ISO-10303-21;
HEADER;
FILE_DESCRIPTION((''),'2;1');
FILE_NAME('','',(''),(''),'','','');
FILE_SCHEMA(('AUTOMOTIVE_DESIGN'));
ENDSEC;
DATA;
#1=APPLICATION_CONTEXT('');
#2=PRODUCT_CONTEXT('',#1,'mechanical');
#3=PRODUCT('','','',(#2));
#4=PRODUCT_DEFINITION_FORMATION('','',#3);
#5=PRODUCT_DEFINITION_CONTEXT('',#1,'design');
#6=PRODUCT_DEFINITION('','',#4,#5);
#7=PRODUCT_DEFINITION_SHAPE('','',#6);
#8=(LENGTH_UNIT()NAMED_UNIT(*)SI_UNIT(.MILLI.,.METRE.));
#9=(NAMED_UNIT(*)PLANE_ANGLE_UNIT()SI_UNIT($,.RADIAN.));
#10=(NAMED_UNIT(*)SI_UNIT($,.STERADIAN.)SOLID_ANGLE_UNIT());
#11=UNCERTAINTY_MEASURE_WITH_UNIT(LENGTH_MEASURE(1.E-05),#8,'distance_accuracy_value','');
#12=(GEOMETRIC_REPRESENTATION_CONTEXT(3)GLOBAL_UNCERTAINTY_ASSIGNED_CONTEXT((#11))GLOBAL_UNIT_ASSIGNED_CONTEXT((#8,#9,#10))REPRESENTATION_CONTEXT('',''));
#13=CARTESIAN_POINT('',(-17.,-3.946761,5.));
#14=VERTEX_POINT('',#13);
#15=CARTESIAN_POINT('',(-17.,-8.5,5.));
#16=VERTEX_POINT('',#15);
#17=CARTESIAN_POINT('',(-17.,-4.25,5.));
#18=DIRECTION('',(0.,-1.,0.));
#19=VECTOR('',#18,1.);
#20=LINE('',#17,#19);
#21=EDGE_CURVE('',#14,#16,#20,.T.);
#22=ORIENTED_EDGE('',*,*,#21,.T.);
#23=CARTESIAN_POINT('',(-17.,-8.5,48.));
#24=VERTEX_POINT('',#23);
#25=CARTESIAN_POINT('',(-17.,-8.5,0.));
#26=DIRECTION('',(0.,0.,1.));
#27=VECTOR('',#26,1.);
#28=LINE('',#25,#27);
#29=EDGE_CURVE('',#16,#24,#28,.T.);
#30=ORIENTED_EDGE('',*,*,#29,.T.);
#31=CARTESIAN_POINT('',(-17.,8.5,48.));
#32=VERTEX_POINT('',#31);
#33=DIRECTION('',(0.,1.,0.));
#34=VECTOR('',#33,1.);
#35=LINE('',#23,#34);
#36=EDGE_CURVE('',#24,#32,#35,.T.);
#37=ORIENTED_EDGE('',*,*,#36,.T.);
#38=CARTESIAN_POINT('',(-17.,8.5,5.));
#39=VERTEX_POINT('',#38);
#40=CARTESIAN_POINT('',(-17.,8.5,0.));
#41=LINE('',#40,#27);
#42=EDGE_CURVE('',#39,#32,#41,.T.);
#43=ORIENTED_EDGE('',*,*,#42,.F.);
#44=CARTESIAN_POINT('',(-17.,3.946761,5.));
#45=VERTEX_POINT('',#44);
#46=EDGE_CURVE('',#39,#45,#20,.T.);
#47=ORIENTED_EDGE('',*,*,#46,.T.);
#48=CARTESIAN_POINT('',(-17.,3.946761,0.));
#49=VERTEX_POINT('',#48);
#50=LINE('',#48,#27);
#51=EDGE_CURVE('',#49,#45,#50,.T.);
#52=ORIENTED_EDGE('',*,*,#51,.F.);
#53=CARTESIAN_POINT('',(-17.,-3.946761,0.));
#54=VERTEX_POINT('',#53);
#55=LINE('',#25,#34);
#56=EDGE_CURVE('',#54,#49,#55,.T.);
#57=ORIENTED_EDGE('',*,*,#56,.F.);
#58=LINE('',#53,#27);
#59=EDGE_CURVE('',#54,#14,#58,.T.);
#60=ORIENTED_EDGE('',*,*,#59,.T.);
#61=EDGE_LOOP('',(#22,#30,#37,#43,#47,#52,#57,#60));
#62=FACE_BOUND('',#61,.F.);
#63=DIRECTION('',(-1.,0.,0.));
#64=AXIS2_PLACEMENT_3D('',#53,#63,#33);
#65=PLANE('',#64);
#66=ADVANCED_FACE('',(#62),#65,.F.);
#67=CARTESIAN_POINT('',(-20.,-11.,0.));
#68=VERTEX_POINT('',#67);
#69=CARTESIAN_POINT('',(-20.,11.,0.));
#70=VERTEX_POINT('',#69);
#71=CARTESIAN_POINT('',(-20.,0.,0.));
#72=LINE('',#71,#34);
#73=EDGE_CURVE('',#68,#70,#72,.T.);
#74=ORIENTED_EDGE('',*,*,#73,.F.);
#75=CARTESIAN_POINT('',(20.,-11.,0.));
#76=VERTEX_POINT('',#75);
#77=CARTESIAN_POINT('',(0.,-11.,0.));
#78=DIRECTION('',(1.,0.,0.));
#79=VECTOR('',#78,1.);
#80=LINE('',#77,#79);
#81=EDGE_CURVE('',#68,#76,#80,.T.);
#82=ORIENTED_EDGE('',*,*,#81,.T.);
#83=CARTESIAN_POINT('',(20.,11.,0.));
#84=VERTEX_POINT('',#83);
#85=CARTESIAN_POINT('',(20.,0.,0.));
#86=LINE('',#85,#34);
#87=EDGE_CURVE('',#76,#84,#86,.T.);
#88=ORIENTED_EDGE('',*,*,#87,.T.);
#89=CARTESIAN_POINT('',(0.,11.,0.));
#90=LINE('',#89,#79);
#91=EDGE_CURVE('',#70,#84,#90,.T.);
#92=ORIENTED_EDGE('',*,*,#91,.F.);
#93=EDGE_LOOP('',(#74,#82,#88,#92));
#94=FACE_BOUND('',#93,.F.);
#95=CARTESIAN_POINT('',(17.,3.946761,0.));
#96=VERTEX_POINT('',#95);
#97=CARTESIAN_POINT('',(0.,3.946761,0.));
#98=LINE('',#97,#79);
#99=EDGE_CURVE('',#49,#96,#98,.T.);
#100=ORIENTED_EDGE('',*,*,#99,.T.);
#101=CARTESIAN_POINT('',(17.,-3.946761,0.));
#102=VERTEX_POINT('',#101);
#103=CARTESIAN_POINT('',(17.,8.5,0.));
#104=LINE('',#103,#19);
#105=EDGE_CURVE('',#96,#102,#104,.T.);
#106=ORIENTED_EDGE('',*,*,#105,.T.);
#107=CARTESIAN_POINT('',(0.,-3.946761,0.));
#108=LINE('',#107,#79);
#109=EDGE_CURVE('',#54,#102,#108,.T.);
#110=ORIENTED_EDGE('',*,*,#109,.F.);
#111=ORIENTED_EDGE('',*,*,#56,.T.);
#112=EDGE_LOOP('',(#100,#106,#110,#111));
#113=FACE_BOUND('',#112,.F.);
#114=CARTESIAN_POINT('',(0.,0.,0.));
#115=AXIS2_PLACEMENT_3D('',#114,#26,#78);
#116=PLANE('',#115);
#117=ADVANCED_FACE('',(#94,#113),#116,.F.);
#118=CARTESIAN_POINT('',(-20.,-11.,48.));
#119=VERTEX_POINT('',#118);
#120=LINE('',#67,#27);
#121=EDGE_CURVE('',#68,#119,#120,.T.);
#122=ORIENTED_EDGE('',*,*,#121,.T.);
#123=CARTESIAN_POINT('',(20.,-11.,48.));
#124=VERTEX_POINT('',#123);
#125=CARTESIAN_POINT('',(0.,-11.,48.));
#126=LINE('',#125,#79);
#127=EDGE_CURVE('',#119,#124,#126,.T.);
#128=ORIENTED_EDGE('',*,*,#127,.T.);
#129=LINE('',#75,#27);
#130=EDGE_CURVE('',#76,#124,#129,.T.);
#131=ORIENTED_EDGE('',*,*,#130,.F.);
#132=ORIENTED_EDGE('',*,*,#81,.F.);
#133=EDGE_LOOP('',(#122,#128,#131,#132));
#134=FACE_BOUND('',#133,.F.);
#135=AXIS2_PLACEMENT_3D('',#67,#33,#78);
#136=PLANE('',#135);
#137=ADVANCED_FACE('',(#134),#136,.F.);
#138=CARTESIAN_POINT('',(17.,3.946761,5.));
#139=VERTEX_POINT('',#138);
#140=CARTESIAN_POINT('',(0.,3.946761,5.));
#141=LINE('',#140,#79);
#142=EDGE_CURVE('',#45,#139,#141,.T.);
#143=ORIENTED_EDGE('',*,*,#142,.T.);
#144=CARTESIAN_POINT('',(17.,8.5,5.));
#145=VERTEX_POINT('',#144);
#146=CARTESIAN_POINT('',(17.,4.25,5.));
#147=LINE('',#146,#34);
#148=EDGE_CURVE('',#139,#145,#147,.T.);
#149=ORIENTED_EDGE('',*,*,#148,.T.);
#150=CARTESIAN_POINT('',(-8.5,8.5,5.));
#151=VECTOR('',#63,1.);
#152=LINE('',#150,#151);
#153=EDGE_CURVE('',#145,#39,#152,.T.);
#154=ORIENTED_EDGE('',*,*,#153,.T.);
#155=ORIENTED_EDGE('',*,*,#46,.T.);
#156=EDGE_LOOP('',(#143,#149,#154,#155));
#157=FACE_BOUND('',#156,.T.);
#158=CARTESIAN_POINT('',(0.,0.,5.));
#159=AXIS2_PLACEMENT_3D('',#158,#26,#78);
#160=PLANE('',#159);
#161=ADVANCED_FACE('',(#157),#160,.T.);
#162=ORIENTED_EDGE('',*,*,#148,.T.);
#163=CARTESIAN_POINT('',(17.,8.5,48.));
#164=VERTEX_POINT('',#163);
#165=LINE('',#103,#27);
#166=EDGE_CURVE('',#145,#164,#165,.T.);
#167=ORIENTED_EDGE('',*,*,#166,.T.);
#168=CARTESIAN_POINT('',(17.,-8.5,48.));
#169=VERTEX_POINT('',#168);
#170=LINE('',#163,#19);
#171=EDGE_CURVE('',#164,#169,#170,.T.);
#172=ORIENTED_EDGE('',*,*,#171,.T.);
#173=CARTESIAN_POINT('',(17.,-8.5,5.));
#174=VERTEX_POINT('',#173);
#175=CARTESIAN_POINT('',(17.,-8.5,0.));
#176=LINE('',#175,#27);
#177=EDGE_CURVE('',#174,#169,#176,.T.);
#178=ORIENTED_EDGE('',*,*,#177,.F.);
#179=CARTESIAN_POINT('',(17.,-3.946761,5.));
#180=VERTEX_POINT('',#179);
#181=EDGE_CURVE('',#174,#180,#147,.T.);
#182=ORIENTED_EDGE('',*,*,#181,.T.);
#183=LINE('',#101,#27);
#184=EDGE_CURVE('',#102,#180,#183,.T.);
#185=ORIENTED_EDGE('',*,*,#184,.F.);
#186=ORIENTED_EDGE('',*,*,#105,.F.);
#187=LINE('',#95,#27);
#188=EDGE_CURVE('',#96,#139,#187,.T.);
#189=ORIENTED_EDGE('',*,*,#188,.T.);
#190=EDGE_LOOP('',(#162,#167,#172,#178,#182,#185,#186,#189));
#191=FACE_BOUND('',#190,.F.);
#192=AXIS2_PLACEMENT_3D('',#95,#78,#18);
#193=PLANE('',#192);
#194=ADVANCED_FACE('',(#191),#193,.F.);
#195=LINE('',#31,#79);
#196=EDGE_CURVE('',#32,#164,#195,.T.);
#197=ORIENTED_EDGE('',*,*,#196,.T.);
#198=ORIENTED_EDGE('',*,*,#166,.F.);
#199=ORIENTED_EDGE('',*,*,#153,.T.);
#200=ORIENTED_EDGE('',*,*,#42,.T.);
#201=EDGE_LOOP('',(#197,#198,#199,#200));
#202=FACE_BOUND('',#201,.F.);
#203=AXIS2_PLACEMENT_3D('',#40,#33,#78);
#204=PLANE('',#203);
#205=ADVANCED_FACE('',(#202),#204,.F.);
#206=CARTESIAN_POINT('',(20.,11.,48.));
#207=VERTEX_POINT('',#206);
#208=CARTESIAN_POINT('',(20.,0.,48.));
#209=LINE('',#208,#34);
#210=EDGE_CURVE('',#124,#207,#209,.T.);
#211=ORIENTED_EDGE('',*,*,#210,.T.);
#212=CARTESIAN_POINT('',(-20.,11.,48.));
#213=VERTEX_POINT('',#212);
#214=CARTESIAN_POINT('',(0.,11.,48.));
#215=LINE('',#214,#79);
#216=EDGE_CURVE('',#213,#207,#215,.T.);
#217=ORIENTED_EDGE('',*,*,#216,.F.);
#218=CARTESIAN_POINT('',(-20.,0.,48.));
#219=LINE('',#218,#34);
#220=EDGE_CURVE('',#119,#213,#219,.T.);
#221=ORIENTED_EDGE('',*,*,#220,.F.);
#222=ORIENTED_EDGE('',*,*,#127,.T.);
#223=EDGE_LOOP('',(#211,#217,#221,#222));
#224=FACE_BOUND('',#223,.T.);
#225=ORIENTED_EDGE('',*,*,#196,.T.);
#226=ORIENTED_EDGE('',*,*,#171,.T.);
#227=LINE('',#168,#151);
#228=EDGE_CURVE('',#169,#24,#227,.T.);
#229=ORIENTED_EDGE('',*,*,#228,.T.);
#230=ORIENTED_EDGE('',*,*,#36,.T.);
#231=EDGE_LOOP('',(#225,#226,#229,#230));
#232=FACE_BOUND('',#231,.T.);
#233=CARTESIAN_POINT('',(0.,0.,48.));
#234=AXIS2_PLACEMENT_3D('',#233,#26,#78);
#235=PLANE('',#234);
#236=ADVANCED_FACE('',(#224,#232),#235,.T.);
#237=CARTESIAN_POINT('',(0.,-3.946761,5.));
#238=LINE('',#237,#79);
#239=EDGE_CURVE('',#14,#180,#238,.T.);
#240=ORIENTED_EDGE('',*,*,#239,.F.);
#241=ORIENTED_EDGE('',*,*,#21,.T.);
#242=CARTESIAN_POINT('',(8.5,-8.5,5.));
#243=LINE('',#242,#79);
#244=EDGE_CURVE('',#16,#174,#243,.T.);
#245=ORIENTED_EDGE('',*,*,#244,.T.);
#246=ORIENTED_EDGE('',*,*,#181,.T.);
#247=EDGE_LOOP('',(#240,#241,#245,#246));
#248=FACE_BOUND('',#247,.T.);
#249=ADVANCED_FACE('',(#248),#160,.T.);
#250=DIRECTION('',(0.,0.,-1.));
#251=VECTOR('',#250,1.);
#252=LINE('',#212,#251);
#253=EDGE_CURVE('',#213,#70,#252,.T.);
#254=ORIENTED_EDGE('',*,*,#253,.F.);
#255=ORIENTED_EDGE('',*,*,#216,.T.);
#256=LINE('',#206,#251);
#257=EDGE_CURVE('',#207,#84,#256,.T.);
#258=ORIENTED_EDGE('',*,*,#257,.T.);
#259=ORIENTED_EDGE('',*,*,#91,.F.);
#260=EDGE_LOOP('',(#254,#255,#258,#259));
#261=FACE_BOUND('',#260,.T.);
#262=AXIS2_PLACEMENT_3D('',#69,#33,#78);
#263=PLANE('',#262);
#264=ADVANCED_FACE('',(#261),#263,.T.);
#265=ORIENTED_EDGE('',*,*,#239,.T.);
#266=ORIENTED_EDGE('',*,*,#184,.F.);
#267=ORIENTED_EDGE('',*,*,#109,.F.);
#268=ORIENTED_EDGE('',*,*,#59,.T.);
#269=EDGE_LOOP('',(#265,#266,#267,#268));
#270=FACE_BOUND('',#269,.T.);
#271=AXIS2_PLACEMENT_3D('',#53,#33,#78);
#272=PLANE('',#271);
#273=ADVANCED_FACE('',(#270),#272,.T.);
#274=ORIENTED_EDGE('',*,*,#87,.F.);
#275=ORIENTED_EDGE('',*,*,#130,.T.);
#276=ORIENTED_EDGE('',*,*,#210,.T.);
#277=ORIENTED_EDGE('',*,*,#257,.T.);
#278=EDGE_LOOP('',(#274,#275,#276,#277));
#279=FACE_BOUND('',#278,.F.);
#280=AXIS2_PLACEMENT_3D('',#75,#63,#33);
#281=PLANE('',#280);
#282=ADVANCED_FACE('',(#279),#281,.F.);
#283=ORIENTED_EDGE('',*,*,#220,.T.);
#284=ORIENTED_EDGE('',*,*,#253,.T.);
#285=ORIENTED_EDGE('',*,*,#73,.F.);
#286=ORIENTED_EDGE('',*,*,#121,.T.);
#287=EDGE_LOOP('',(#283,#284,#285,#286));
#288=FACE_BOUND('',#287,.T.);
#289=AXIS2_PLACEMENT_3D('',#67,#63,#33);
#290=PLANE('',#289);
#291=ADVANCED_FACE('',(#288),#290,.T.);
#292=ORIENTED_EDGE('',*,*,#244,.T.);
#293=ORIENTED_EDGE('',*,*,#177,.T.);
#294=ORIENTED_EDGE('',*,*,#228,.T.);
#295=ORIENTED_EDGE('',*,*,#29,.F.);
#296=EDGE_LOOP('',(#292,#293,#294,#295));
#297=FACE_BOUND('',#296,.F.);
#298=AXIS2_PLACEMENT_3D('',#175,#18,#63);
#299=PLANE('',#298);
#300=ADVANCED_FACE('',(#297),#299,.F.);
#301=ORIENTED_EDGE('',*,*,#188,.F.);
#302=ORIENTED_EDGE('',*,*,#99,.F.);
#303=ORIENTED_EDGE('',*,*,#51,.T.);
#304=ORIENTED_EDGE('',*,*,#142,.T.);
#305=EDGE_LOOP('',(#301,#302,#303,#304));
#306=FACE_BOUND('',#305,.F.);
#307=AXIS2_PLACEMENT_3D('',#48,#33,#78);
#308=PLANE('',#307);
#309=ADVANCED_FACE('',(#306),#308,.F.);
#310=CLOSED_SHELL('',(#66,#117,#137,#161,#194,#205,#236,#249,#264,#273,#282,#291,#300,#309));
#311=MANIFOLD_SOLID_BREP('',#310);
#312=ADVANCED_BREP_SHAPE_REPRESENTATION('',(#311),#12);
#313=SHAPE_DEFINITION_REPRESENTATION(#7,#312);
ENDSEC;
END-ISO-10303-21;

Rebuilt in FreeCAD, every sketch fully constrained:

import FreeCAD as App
import Part
import Sketcher


def add_polygon(sketch, points):
    """Adds a closed chain of lines whose ends are joined by coincident constraints."""
    first, n = sketch.GeometryCount, len(points)
    for a, b in zip(points, points[1:] + points[:1]):
        sketch.addGeometry(Part.LineSegment(App.Vector(*a, 0), App.Vector(*b, 0)), False)
    for i in range(n):
        sketch.addConstraint(Sketcher.Constraint("Coincident", first + i, 2, first + (i + 1) % n, 1))

doc = App.newDocument("Part")
body = doc.addObject("PartDesign::Body", "Body")

# Sketch on XY plane
sketch1 = doc.addObject("Sketcher::SketchObject", "Sketch")
body.addObject(sketch1)
sketch1.AttachmentSupport = (doc.XY_Plane, [""])
sketch1.MapMode = "FlatFace"
add_polygon(sketch1, [(-20, 11), (-20, -11), (20, -11), (20, 11)])  # lines 0-3
add_polygon(sketch1, [(17, 4), (17, -4), (-17, -4), (-17, 4)])  # lines 4-7
sketch1.addConstraint([
    Sketcher.Constraint("Vertical", 0),
    Sketcher.Constraint("Horizontal", 1),
    Sketcher.Constraint("Vertical", 2),
    Sketcher.Constraint("Horizontal", 3),
    Sketcher.Constraint("Vertical", 4),
    Sketcher.Constraint("Horizontal", 5),
    Sketcher.Constraint("Vertical", 6),
    Sketcher.Constraint("Horizontal", 7),
    Sketcher.Constraint("Symmetric", 0, 2, 2, 2, -1, 1),
    Sketcher.Constraint("Symmetric", 4, 2, 6, 2, -1, 1),
    Sketcher.Constraint("DistanceX", 1, 1, 1, 2, 40.0),
    Sketcher.Constraint("DistanceX", 5, 2, 5, 1, 34.0),
    Sketcher.Constraint("DistanceY", 0, 2, 0, 1, 22.0),
    Sketcher.Constraint("DistanceY", 4, 2, 4, 1, 7.893521),
])
pad1 = doc.addObject("PartDesign::Pad", "Pad")
body.addObject(pad1)
pad1.Profile = sketch1
pad1.Length = 5

# Sketch on XY plane
sketch2 = doc.addObject("Sketcher::SketchObject", "Sketch001")
body.addObject(sketch2)
sketch2.AttachmentSupport = (doc.XY_Plane, [""])
sketch2.MapMode = "FlatFace"
add_polygon(sketch2, [(-20, 11), (-20, -11), (20, -11), (20, 11)])  # lines 0-3
add_polygon(sketch2, [(17, 8), (17, -8), (-17, -8), (-17, 8)])  # lines 4-7
sketch2.addConstraint([
    Sketcher.Constraint("Vertical", 0),
    Sketcher.Constraint("Horizontal", 1),
    Sketcher.Constraint("Vertical", 2),
    Sketcher.Constraint("Horizontal", 3),
    Sketcher.Constraint("Vertical", 4),
    Sketcher.Constraint("Horizontal", 5),
    Sketcher.Constraint("Vertical", 6),
    Sketcher.Constraint("Horizontal", 7),
    Sketcher.Constraint("Symmetric", 0, 2, 2, 2, -1, 1),
    Sketcher.Constraint("Symmetric", 4, 2, 6, 2, -1, 1),
    Sketcher.Constraint("DistanceX", 1, 1, 1, 2, 40.0),
    Sketcher.Constraint("DistanceX", 5, 2, 5, 1, 34.0),
    Sketcher.Constraint("DistanceY", 0, 2, 0, 1, 22.0),
    Sketcher.Constraint("DistanceY", 4, 2, 4, 1, 17.0),
])
pad2 = doc.addObject("PartDesign::Pad", "Pad001")
body.addObject(pad2)
pad2.Profile = sketch2
pad2.Length = 48

doc.recompute()
